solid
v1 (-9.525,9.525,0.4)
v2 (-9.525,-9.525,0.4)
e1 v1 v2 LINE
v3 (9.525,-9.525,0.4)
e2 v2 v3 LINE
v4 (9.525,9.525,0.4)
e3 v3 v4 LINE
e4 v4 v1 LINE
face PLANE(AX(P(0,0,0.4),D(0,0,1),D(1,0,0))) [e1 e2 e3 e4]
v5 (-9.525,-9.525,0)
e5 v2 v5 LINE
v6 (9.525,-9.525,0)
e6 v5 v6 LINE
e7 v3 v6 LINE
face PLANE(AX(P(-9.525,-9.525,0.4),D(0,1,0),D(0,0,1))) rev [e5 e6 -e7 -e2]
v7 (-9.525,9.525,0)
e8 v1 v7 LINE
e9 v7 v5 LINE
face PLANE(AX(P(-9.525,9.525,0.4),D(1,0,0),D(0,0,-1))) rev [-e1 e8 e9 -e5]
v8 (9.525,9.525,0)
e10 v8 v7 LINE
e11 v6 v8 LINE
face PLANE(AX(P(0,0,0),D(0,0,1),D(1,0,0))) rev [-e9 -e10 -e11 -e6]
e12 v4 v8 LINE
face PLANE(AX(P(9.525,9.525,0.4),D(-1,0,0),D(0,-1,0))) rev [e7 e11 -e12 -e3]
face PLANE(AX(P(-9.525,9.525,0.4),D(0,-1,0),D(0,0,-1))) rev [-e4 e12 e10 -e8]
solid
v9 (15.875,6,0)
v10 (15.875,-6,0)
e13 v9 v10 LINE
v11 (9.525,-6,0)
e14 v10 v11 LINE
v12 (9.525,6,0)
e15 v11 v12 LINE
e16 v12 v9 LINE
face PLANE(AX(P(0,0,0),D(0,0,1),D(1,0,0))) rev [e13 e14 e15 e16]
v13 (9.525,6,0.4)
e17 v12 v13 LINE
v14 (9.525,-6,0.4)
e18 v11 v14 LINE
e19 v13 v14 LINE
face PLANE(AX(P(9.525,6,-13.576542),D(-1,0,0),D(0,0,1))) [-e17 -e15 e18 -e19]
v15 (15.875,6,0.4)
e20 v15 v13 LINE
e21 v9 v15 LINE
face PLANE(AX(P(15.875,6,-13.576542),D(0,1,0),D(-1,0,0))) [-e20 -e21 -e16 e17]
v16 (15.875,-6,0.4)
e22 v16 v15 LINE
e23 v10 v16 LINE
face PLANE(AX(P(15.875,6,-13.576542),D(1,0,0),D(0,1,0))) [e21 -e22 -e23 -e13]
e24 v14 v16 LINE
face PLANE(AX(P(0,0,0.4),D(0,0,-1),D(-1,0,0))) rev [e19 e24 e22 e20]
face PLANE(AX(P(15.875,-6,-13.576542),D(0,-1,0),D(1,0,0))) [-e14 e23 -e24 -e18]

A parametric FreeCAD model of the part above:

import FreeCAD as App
import Part
import Sketcher

V = App.Vector
Q = App.Units.Quantity

doc = App.newDocument("Part")
body = doc.addObject("PartDesign::Body", "Body")

# Sketch on XY plane
sketch1 = doc.addObject("Sketcher::SketchObject", "Sketch")
body.addObject(sketch1)
sketch1.AttachmentSupport = (doc.XY_Plane, [""])
sketch1.MapMode = "FlatFace"
sketch1.addGeometry([
    Part.LineSegment(V(-10, 10, 0), V(-10, -10, 0)),
    Part.LineSegment(V(-10, -10, 0), V(10, -10, 0)),
    Part.LineSegment(V(10, -10, 0), V(10, 10, 0)),
    Part.LineSegment(V(10, 10, 0), V(-10, 10, 0)),
], False)
sketch1.addConstraint([
    Sketcher.Constraint("Coincident", 0, 2, 1, 1),
    Sketcher.Constraint("Coincident", 1, 2, 2, 1),
    Sketcher.Constraint("Coincident", 2, 2, 3, 1),
    Sketcher.Constraint("Coincident", 3, 2, 0, 1),
    Sketcher.Constraint("Vertical", 0),
    Sketcher.Constraint("Horizontal", 1),
    Sketcher.Constraint("Vertical", 2),
    Sketcher.Constraint("Horizontal", 3),
    Sketcher.Constraint("Symmetric", 0, 2, 2, 2, -1, 1),
    Sketcher.Constraint("Equal", 3, 0),
    Sketcher.Constraint("DistanceX", 1, 1, 1, 2, Q("19.05 mm")),
])
pad1 = doc.addObject("PartDesign::Pad", "Pad")
body.addObject(pad1)
pad1.Profile = sketch1
pad1.Length = 0.4
body2 = doc.addObject("PartDesign::Body", "Body001")

# Sketch on XY plane
sketch2 = doc.addObject("Sketcher::SketchObject", "Sketch001")
body2.addObject(sketch2)
sketch2.AttachmentSupport = (doc.getObject("XY_Plane001"), [""])
sketch2.MapMode = "FlatFace"
sketch2.AttachmentOffset = App.Placement(V(0, 0, 0.4), App.Rotation())
sketch2.addGeometry([
    Part.LineSegment(V(10, 6, 0), V(10, -6, 0)),
    Part.LineSegment(V(10, -6, 0), V(16, -6, 0)),
    Part.LineSegment(V(16, -6, 0), V(16, 6, 0)),
    Part.LineSegment(V(16, 6, 0), V(10, 6, 0)),
], False)
sketch2.addConstraint([
    Sketcher.Constraint("Coincident", 0, 2, 1, 1),
    Sketcher.Constraint("Coincident", 1, 2, 2, 1),
    Sketcher.Constraint("Coincident", 2, 2, 3, 1),
    Sketcher.Constraint("Coincident", 3, 2, 0, 1),
    Sketcher.Constraint("Vertical", 0),
    Sketcher.Constraint("Horizontal", 1),
    Sketcher.Constraint("Vertical", 2),
    Sketcher.Constraint("Horizontal", 3),
    Sketcher.Constraint("DistanceY", 0, 2, 0, 1, Q("12 mm")),
    Sketcher.Constraint("DistanceY", 0, 2, -1, 1, Q("6 mm")),
    Sketcher.Constraint("DistanceX", 1, 1, 1, 2, Q("6.35 mm")),
    Sketcher.Constraint("DistanceX", -1, 1, 0, 2, Q("9.525 mm")),
])
pad2 = doc.addObject("PartDesign::Pad", "Pad001")
body2.addObject(pad2)
pad2.Profile = sketch2
pad2.Length = 0.4
pad2.Reversed = True

doc.recompute()
